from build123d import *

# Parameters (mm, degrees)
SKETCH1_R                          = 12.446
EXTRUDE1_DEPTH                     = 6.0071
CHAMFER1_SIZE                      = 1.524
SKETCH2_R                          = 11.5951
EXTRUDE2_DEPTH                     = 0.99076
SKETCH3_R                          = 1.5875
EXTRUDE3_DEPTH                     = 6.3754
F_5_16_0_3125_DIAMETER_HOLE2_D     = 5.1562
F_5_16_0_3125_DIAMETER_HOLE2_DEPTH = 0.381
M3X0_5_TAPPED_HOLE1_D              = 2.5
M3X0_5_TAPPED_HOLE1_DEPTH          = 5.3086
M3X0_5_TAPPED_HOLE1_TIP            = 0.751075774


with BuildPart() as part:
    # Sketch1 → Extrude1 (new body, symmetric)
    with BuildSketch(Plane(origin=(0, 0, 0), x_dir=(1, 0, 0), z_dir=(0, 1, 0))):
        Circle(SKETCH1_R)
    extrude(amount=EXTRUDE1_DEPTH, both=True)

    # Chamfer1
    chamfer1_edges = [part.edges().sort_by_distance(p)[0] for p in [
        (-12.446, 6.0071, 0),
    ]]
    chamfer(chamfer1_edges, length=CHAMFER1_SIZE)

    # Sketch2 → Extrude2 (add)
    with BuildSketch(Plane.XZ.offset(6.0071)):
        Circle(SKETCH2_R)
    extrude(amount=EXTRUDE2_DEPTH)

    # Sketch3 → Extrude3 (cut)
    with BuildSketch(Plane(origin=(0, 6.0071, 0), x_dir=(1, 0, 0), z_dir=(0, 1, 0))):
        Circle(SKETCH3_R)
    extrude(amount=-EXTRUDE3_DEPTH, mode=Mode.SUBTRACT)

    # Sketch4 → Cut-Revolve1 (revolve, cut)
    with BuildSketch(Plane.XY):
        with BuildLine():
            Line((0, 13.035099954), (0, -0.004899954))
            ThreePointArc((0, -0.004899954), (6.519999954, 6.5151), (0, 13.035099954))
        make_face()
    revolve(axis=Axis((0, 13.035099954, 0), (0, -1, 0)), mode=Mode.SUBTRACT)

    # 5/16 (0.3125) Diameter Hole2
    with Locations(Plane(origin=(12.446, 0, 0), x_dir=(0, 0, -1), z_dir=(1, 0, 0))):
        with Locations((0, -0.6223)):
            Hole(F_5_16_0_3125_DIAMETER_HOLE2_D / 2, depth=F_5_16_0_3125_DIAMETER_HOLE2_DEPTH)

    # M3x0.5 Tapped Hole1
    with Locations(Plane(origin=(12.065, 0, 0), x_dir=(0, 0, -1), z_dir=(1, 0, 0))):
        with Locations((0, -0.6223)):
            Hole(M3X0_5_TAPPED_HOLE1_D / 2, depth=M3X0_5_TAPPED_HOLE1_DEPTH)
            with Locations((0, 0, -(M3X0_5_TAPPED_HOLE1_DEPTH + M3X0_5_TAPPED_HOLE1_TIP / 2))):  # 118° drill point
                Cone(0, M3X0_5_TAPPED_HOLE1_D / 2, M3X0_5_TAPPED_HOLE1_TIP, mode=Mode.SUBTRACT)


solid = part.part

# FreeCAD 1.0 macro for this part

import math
import FreeCAD as App
import Part
import Sketcher

V = App.Vector
Q = App.Units.Quantity


def edges_at(feature, points):
    """Names of the edges that pass closest to the given points."""
    edges = feature.Shape.Edges
    near = lambda p: min(range(len(edges)), key=lambda i: edges[i].distToShape(Part.Vertex(*p))[0])
    return sorted({f"Edge{near(p) + 1}" for p in points})

doc = App.newDocument("Part")
body = doc.addObject("PartDesign::Body", "Body")

sketch1 = body.newObject("Sketcher::SketchObject", "Sketch")
sketch1.AttachmentSupport = (doc.getObject("XZ_Plane"), [""])
sketch1.MapMode = "FlatFace"
sketch1.addGeometry(Part.Circle(V(0, 0, 0), V(0, 0, 1), 12), False)
sketch1.addConstraint([
    Sketcher.Constraint("Coincident", 0, 3, -1, 1),
    Sketcher.Constraint("Diameter", 0, Q("0.98 in")),
])
pad1 = body.newObject("PartDesign::Pad", "Pad")
pad1.Profile = sketch1
pad1.Length = Q("0.473 in")
pad1.Midplane = True
doc.recompute()

chamfer = body.newObject("PartDesign::Chamfer", "Chamfer")
chamfer.Base = (pad1, edges_at(pad1, [(-12.446, 6.007, 0)]))
chamfer.Size = Q("0.06 in")

sketch2 = body.newObject("Sketcher::SketchObject", "Sketch001")
sketch2.AttachmentSupport = (doc.getObject("XZ_Plane"), [""])
sketch2.MapMode = "FlatFace"
sketch2.AttachmentOffset = App.Placement(V(0, 0, 0.2365 * 25.4), App.Rotation())
sketch2.addGeometry(Part.Circle(V(0, 0, 0), V(0, 0, 1), 12), False)
sketch2.addConstraint([
    Sketcher.Constraint("Coincident", 0, 3, -1, 1),
    Sketcher.Constraint("Diameter", 0, Q("0.913 in")),
])
pad2 = body.newObject("PartDesign::Pad", "Pad001")
pad2.Profile = sketch2
pad2.Length = 0.99076

sketch3 = body.newObject("Sketcher::SketchObject", "Sketch002")
sketch3.AttachmentSupport = (doc.getObject("XZ_Plane"), [""])
sketch3.MapMode = "FlatFace"
sketch3.AttachmentOffset = App.Placement(V(0, 0, -0.2365 * 25.4), App.Rotation())
sketch3.addGeometry(Part.Circle(V(0, 0, 0), V(0, 0, 1), 1.6), False)
sketch3.addConstraint([
    Sketcher.Constraint("Coincident", 0, 3, -1, 1),
    Sketcher.Constraint("Diameter", 0, Q("0.125 in")),
])
pocket1 = body.newObject("PartDesign::Pocket", "Pocket")
pocket1.Profile = sketch3
pocket1.Length = Q("0.251 in")
pocket1.Reversed = True

sketch4 = body.newObject("Sketcher::SketchObject", "Sketch003")
sketch4.AttachmentSupport = (doc.getObject("XY_Plane"), [""])
sketch4.MapMode = "FlatFace"
sketch4.addGeometry([
    Part.LineSegment(V(0, 13, 0), V(0, 0, 0)),
    Part.ArcOfCircle(Part.Circle(V(0, 7, 0), V(0, 0, 1), 7), math.radians(-90), math.radians(90)),
], False)
sketch4.addConstraint([
    Sketcher.Constraint("Coincident", 0, 1, 1, 2),
    Sketcher.Constraint("Coincident", 1, 1, 0, 2),
    Sketcher.Constraint("Vertical", 0),
    Sketcher.Constraint("PointOnObject", 1, 3, -2),
    Sketcher.Constraint("PointOnObject", 0, 1, -2),
    Sketcher.Constraint("Radius", 1, Q("6.52 mm")),
    Sketcher.Constraint("DistanceY", -1, 1, 1, 3, Q("0.2565 in")),
])
groove = body.newObject("PartDesign::Groove", "Groove")
groove.Profile = sketch4
groove.ReferenceAxis = (sketch4, ["V_Axis"])
groove.Angle = 360

sketch5 = body.newObject("Sketcher::SketchObject", "Sketch004")
sketch5.AttachmentSupport = (doc.getObject("YZ_Plane"), [""])
sketch5.MapMode = "FlatFace"
sketch5.AttachmentOffset = App.Placement(V(0, 0, 0.49 * 25.4), App.Rotation())
sketch5.addGeometry(Part.Circle(V(-0.6, 0, 0), V(0, 0, 1), 2.6), False)
sketch5.addConstraint([
    Sketcher.Constraint("PointOnObject", 0, 3, -1),
    Sketcher.Constraint("Diameter", 0, Q("0.203 in")),
    Sketcher.Constraint("DistanceX", 0, 3, -1, 1, Q("0.0245 in")),
])
doc.recompute()
hole = body.newObject("PartDesign::Hole", "Hole")
hole.Profile = sketch5
hole.ThreadType = "None"
hole.Diameter = Q("0.203 in")
hole.DepthType = "Dimension"
hole.Depth = Q("0.015 in")
hole.DrillPoint = "Flat"

sketch6 = body.newObject("Sketcher::SketchObject", "Sketch005")
sketch6.AttachmentSupport = (doc.getObject("YZ_Plane"), [""])
sketch6.MapMode = "FlatFace"
sketch6.AttachmentOffset = App.Placement(V(0, 0, 0.475 * 25.4), App.Rotation())
sketch6.addGeometry(Part.Circle(V(-0.6, 0, 0), V(0, 0, 1), 1.2), False)
sketch6.addConstraint([
    Sketcher.Constraint("PointOnObject", 0, 3, -1),
    Sketcher.Constraint("Diameter", 0, Q("2.5 mm")),
    Sketcher.Constraint("DistanceX", 0, 3, -1, 1, Q("0.0245 in")),
])
doc.recompute()
hole2 = body.newObject("PartDesign::Hole", "Hole001")
hole2.Profile = sketch6
hole2.ThreadType = "None"
hole2.Diameter = 2.5
hole2.DepthType = "Dimension"
hole2.Depth = Q("0.209 in")
hole2.DrillPoint = "Angled"
hole2.DrillPointAngle = 118

doc.recompute()
